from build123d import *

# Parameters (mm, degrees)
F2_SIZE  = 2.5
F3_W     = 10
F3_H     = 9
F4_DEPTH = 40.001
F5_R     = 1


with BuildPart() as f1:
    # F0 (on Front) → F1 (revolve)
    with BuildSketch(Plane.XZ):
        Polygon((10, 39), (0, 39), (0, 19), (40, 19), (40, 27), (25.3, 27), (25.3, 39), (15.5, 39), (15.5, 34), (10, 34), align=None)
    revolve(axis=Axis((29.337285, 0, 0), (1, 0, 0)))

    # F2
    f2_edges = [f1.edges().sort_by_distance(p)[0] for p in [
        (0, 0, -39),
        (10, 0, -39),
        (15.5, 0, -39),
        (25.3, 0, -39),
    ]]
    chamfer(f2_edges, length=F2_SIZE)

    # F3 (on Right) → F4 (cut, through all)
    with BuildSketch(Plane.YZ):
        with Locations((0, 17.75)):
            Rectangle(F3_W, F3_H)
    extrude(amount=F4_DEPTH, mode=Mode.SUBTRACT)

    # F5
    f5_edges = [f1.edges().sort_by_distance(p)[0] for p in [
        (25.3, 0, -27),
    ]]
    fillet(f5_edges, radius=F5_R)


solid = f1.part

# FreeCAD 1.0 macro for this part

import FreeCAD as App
import Part
import Sketcher

V = App.Vector


def edges_at(feature, points):
    """Names of the edges that pass closest to the given points."""
    edges = feature.Shape.Edges
    near = lambda p: min(range(len(edges)), key=lambda i: edges[i].distToShape(Part.Vertex(*p))[0])
    return sorted({f"Edge{near(p) + 1}" for p in points})


def add_polygon(sketch, points):
    """Adds a closed chain of lines whose ends are joined by coincident constraints."""
    first, n = sketch.GeometryCount, len(points)
    for a, b in zip(points, points[1:] + points[:1]):
        sketch.addGeometry(Part.LineSegment(App.Vector(*a, 0), App.Vector(*b, 0)), False)
    for i in range(n):
        sketch.addConstraint(Sketcher.Constraint("Coincident", first + i, 2, first + (i + 1) % n, 1))

doc = App.newDocument("Part")
params = doc.addObject("Spreadsheet::Sheet", "Params")
for row, (alias, value) in enumerate([
    ("sketch1_width", "10 mm"),
    ("sketch1_width2", "40 mm"),
    ("sketch1_height", "20 mm"),
    ("sketch1_height2", "8 mm"),
    ("sketch1_height3", "5 mm"),
    ("revolution_angle", "360 deg"),
    ("chamfer_size", "2.5 mm"),
    ("sketch2_width", "10 mm"),
    ("sketch2_height", "9 mm"),
    ("fillet_radius", "1 mm"),
], start=1):
    params.set(f"A{row}", alias)
    params.set(f"B{row}", "=" + value)
    params.setAlias(f"B{row}", alias)

body = doc.addObject("PartDesign::Body", "Body")

# Sketch on XZ plane
sketch1 = body.newObject("Sketcher::SketchObject", "Sketch")
sketch1.AttachmentSupport = (doc.getObject("XZ_Plane"), [""])
sketch1.MapMode = "FlatFace"
add_polygon(sketch1, [(10, 39), (0, 39), (0, 19), (40, 19), (40, 27), (25.3, 27), (25.3, 39), (15.5, 39), (15.5, 34), (10, 34)])  # lines 0-9
sketch1.addConstraint([
    Sketcher.Constraint("Horizontal", 0),
    Sketcher.Constraint("Vertical", 1),
    Sketcher.Constraint("Horizontal", 2),
    Sketcher.Constraint("Vertical", 3),
    Sketcher.Constraint("Horizontal", 4),
    Sketcher.Constraint("Vertical", 5),
    Sketcher.Constraint("Horizontal", 6),
    Sketcher.Constraint("Vertical", 7),
    Sketcher.Constraint("Horizontal", 8),
    Sketcher.Constraint("Vertical", 9),
    Sketcher.Constraint("PointOnObject", 0, 2, -2),
    Sketcher.Constraint("Horizontal", 0, 2, 5, 2),
    Sketcher.Constraint("DistanceX", 0, 2, 0, 1, 10.0),
    Sketcher.Constraint("DistanceX", 2, 1, 2, 2, 40.0),
    Sketcher.Constraint("DistanceY", 1, 2, 1, 1, 20.0),
    Sketcher.Constraint("DistanceY", 3, 1, 3, 2, 8.0),
    Sketcher.Constraint("DistanceY", 7, 2, 7, 1, 5.0),
    Sketcher.Constraint("DistanceX", 4, 2, 4, 1, 14.7),
    Sketcher.Constraint("DistanceX", 6, 2, 6, 1, 9.8),
    Sketcher.Constraint("DistanceY", -1, 1, 0, 2, 39.0),
])
sketch1.setExpression("Constraints[22]", "Params.sketch1_width")
sketch1.setExpression("Constraints[23]", "Params.sketch1_width2")
sketch1.setExpression("Constraints[24]", "Params.sketch1_height")
sketch1.setExpression("Constraints[25]", "Params.sketch1_height2")
sketch1.setExpression("Constraints[26]", "Params.sketch1_height3")
revolution = body.newObject("PartDesign::Revolution", "Revolution")
revolution.Profile = sketch1
revolution.ReferenceAxis = (sketch1, ["H_Axis"])
revolution.setExpression("Angle", "Params.revolution_angle")
doc.recompute()

chamfer = body.newObject("PartDesign::Chamfer", "Chamfer")
chamfer.Base = (revolution, edges_at(revolution, [
    (0, 0, -39),
    (10, 0, -39),
    (15.5, 0, -39),
    (25.3, 0, -39),
]))
chamfer.setExpression("Size", "Params.chamfer_size")

# Sketch on YZ plane
sketch2 = body.newObject("Sketcher::SketchObject", "Sketch001")
sketch2.AttachmentSupport = (doc.getObject("YZ_Plane"), [""])
sketch2.MapMode = "FlatFace"
add_polygon(sketch2, [(-5, 22.25), (-5, 13.25), (5, 13.25), (5, 22.25)])  # lines 0-3
sketch2.addConstraint([
    Sketcher.Constraint("Vertical", 0),
    Sketcher.Constraint("Horizontal", 1),
    Sketcher.Constraint("Vertical", 2),
    Sketcher.Constraint("Horizontal", 3),
    Sketcher.Constraint("DistanceX", 1, 1, 1, 2, 10.0),
    Sketcher.Constraint("DistanceY", 0, 2, 0, 1, 9.0),
    Sketcher.Constraint("DistanceX", 0, 2, -1, 1, 5.0),
    Sketcher.Constraint("DistanceY", -1, 1, 0, 2, 13.25),
])
sketch2.setExpression("Constraints[8]", "Params.sketch2_width")
sketch2.setExpression("Constraints[9]", "Params.sketch2_height")
pocket1 = body.newObject("PartDesign::Pocket", "Pocket")
pocket1.Profile = sketch2
pocket1.Type = "ThroughAll"
pocket1.Reversed = True
doc.recompute()

fillet = body.newObject("PartDesign::Fillet", "Fillet")
fillet.Base = (pocket1, edges_at(pocket1, [(25.3, 0, -27)]))
fillet.setExpression("Radius", "Params.fillet_radius")

doc.recompute()
